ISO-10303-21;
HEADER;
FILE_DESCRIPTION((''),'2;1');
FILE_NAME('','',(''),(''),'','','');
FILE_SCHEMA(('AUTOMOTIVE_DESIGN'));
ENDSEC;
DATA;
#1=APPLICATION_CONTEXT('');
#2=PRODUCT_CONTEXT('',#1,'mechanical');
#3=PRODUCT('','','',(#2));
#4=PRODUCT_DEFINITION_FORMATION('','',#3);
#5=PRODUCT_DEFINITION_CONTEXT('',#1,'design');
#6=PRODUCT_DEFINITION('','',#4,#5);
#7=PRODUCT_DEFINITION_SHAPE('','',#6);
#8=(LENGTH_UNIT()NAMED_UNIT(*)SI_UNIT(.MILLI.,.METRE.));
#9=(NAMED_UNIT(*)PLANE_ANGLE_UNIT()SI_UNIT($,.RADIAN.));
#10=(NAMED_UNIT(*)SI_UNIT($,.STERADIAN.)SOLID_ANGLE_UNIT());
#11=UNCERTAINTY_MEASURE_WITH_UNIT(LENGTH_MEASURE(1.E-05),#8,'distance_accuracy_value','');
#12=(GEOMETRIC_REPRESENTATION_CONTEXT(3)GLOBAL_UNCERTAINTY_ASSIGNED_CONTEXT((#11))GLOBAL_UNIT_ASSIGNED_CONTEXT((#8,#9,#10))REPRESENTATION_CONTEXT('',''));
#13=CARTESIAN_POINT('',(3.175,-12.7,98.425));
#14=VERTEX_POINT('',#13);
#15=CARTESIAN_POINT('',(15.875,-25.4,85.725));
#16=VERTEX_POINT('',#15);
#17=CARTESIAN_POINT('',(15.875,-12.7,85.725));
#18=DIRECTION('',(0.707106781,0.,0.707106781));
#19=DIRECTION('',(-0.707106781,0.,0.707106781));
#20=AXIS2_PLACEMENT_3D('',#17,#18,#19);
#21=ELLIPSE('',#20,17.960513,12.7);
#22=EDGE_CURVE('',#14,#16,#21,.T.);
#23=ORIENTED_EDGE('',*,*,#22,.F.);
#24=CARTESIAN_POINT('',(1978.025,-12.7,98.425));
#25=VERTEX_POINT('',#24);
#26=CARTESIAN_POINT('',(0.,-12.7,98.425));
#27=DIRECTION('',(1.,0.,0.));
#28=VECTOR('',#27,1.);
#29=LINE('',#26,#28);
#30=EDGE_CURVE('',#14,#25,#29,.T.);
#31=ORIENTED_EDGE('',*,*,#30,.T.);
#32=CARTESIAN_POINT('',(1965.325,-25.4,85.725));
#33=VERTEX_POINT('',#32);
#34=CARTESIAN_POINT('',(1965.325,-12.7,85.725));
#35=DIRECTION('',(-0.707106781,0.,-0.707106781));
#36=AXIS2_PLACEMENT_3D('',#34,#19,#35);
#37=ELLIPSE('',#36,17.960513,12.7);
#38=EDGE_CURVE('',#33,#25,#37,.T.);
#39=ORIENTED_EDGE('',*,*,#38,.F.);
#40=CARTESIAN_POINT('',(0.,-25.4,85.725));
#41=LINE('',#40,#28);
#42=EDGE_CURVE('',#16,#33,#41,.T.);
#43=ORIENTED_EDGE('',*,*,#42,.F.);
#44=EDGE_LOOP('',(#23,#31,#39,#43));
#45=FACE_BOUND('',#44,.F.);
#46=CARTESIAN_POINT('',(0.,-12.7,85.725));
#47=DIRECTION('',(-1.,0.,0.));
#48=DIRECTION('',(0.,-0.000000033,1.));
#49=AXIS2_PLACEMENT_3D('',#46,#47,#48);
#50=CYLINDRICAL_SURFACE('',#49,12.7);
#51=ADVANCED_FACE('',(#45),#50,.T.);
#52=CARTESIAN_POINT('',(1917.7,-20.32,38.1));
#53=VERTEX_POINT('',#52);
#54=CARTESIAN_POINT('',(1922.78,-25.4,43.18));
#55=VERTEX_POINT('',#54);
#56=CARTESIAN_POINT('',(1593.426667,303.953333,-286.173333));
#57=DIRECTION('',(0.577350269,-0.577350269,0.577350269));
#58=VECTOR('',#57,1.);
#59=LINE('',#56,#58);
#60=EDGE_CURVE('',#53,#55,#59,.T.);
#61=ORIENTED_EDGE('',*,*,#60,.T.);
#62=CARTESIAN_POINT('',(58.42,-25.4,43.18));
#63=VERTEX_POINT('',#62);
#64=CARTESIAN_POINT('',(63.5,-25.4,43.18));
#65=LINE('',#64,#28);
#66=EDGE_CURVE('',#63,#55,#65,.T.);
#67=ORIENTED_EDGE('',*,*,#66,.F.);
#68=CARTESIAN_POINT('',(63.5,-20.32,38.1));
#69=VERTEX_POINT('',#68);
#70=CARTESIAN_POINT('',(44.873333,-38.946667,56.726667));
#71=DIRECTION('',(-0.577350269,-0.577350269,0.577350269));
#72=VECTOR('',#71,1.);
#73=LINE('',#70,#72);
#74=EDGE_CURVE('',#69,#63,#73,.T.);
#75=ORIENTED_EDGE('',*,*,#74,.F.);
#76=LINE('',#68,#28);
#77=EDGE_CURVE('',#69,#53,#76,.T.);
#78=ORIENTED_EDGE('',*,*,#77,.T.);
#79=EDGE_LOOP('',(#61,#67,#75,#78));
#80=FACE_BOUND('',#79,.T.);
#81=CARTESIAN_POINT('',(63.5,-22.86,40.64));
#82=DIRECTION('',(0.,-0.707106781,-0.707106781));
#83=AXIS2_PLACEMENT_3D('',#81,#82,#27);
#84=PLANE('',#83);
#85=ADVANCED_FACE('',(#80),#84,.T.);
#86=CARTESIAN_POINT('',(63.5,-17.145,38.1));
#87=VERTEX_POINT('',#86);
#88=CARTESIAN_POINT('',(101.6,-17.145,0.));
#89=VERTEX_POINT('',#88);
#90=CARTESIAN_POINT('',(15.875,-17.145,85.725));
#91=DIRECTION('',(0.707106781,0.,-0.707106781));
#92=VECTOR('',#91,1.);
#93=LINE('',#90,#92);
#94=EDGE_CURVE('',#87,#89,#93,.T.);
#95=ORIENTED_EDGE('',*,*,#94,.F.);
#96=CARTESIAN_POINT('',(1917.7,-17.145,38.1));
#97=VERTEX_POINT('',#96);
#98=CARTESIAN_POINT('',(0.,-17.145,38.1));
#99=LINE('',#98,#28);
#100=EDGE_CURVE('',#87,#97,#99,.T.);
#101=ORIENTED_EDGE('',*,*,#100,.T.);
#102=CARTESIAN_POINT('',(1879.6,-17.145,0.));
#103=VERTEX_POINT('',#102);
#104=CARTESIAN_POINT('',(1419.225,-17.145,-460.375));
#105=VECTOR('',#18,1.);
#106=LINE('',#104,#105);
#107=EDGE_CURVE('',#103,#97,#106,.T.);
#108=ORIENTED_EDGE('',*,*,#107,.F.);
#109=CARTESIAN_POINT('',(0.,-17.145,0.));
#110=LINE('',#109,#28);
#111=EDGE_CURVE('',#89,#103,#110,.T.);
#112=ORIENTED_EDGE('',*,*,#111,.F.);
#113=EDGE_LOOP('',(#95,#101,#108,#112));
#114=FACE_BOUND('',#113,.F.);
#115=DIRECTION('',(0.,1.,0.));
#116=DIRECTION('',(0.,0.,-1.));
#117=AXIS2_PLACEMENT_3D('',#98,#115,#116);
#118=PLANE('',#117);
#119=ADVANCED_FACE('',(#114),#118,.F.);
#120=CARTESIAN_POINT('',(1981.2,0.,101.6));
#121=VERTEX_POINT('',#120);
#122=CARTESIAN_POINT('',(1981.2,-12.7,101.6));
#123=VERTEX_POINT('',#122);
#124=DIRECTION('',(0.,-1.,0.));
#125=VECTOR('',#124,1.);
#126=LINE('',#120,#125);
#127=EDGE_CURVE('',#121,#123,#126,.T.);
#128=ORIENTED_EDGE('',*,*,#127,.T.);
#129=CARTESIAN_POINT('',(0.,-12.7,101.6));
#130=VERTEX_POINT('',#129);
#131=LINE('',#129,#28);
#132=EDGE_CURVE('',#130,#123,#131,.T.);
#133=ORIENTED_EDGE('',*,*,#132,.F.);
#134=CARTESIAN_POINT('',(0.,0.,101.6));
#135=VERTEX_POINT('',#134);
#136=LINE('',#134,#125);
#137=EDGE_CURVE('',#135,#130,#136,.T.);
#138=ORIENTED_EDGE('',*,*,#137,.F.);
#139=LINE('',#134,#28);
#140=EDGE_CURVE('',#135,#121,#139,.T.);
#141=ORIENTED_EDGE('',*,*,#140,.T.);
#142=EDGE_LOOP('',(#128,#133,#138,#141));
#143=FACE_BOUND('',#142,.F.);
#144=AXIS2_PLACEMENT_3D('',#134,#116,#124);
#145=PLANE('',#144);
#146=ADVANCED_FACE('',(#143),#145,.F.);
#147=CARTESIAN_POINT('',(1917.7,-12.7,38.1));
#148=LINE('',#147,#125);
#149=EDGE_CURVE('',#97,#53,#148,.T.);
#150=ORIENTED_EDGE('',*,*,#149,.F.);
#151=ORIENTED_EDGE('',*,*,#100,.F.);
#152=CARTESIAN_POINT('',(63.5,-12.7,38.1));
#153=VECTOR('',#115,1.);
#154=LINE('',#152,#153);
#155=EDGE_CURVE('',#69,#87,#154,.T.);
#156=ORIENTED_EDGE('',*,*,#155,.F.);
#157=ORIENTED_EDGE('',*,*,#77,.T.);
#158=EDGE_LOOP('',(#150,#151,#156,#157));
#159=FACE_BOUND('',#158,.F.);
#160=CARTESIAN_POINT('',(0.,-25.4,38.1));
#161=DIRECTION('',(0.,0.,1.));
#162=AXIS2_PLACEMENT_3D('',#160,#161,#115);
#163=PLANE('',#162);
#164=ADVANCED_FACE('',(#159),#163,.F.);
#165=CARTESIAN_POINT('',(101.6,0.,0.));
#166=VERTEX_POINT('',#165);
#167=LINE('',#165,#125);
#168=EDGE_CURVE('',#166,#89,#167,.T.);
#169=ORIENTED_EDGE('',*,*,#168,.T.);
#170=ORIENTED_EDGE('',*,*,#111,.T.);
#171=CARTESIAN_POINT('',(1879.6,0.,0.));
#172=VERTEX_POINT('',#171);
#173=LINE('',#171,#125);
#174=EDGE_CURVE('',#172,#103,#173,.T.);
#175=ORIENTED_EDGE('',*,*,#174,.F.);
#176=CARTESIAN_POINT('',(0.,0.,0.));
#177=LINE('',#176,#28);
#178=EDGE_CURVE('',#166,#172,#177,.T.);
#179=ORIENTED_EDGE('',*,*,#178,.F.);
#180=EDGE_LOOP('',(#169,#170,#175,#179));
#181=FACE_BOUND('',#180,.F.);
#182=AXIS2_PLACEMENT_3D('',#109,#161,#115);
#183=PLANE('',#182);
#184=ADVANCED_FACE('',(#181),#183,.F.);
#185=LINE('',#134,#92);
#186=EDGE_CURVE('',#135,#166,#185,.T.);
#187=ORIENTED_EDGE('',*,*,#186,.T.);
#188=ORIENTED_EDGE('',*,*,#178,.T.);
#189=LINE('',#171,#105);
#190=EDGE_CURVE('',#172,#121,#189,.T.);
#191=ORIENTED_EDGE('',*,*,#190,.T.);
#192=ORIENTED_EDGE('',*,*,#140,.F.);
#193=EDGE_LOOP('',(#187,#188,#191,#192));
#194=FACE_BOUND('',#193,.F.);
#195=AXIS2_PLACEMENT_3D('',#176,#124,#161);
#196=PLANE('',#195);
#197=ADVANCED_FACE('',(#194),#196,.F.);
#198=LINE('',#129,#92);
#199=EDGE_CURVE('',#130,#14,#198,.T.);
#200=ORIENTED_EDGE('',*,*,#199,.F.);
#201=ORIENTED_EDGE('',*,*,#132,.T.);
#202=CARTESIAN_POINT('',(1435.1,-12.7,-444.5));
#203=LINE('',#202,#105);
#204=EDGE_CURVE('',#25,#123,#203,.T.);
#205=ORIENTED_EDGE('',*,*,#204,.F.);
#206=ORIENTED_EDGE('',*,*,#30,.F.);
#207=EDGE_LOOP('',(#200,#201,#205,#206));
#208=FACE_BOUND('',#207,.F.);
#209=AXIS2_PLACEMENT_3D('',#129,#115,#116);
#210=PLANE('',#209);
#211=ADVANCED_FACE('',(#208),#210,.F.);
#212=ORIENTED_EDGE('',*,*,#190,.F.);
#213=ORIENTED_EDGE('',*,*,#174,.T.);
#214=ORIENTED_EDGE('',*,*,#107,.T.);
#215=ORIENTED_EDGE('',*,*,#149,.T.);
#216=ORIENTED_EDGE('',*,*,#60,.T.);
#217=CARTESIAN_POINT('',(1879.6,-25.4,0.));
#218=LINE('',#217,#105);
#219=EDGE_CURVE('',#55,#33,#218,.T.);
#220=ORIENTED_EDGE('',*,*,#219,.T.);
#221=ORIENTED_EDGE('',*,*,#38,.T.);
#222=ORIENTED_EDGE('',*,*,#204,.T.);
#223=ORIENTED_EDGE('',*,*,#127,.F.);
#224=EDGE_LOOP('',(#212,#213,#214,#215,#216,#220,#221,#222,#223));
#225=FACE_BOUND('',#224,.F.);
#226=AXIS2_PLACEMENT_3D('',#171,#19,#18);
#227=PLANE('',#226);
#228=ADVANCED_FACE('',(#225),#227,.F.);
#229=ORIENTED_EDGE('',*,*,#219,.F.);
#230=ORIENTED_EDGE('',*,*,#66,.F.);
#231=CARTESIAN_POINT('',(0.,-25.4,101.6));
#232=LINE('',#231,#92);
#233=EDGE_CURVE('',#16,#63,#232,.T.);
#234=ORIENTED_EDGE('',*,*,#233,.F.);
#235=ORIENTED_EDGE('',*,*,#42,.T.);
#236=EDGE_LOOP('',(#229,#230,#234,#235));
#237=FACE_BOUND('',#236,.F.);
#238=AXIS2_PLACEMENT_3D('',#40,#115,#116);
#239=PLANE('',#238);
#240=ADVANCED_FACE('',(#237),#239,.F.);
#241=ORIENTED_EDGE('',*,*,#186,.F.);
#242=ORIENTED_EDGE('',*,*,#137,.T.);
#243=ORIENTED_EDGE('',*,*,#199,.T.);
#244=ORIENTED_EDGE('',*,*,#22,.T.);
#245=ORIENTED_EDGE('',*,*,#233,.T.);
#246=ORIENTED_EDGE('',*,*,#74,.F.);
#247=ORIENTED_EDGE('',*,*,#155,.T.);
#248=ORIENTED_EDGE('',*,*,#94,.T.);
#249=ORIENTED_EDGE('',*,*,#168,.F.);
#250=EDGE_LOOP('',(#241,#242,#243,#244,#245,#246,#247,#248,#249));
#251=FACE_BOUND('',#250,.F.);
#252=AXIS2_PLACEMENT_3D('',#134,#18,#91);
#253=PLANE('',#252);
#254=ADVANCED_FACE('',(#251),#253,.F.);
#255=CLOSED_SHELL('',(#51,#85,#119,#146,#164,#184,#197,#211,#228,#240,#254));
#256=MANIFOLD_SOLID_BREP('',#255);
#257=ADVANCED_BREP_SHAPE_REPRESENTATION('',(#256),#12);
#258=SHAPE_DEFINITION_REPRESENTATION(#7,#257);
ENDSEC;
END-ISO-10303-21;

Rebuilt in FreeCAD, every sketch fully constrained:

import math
import FreeCAD as App
import Part
import Sketcher

V = App.Vector
Q = App.Units.Quantity


def edges_at(feature, points):
    """Names of the edges that pass closest to the given points."""
    edges = feature.Shape.Edges
    near = lambda p: min(range(len(edges)), key=lambda i: edges[i].distToShape(Part.Vertex(*p))[0])
    return sorted({f"Edge{near(p) + 1}" for p in points})

doc = App.newDocument("Part")
body = doc.addObject("PartDesign::Body", "Body")

sketch1 = body.newObject("Sketcher::SketchObject", "Sketch")
sketch1.AttachmentSupport = (doc.getObject("YZ_Plane"), [""])
sketch1.MapMode = "FlatFace"
sketch1.addGeometry([
    Part.LineSegment(V(-17.1, 0, 0), V(0, 0, 0)),
    Part.LineSegment(V(0, 0, 0), V(0, 101.6, 0)),
    Part.LineSegment(V(0, 101.6, 0), V(-12.7, 101.6, 0)),
    Part.LineSegment(V(-12.7, 101.6, 0), V(-12.7, 98.4, 0)),
    Part.ArcOfCircle(Part.Circle(V(-12.7, 85.7, 0), V(0, 0, 1), 12.7), math.radians(90), math.radians(180)),
    Part.LineSegment(V(-25.4, 85.7, 0), V(-25.4, 38.1, 0)),
    Part.LineSegment(V(-25.4, 38.1, 0), V(-17.1, 38.1, 0)),
    Part.LineSegment(V(-17.1, 38.1, 0), V(-17.1, 0, 0)),
], False)
sketch1.addConstraint([
    Sketcher.Constraint("Coincident", 0, 2, 1, 1),
    Sketcher.Constraint("Coincident", 1, 2, 2, 1),
    Sketcher.Constraint("Coincident", 2, 2, 3, 1),
    Sketcher.Constraint("Coincident", 3, 2, 4, 1),
    Sketcher.Constraint("Tangent", 4, 2, 5, 1),
    Sketcher.Constraint("Coincident", 5, 2, 6, 1),
    Sketcher.Constraint("Coincident", 6, 2, 7, 1),
    Sketcher.Constraint("Coincident", 7, 2, 0, 1),
    Sketcher.Constraint("Horizontal", 0),
    Sketcher.Constraint("Vertical", 1),
    Sketcher.Constraint("Horizontal", 2),
    Sketcher.Constraint("Vertical", 3),
    Sketcher.Constraint("Vertical", 5),
    Sketcher.Constraint("Horizontal", 6),
    Sketcher.Constraint("Vertical", 7),
    Sketcher.Constraint("Coincident", 0, 2, -1, 1),
    Sketcher.Constraint("Vertical", 4, 3, 2, 2),
    Sketcher.Constraint("Radius", 4, Q("0.5 in")),
    Sketcher.Constraint("DistanceY", 1, 1, 1, 2, Q("4 in")),
    Sketcher.Constraint("DistanceX", 2, 2, 2, 1, Q("0.5 in")),
    Sketcher.Constraint("DistanceY", 7, 2, 7, 1, Q("1.5 in")),
    Sketcher.Constraint("DistanceX", 0, 1, 0, 2, Q("0.675 in")),
    Sketcher.Constraint("DistanceY", 3, 2, 3, 1, Q("0.125 in")),
])
pad1 = body.newObject("PartDesign::Pad", "Pad")
pad1.Profile = sketch1
pad1.Length = Q("78 in")

sketch2 = body.newObject("Sketcher::SketchObject", "Sketch001")
sketch2.AttachmentSupport = (doc.getObject("XZ_Plane"), [""])
sketch2.MapMode = "FlatFace"
sketch2.addGeometry([
    Part.LineSegment(V(1880, 0, 0), V(1981, 102, 0)),
    Part.LineSegment(V(1981, 102, 0), V(1981, 0, 0)),
    Part.LineSegment(V(1981, 0, 0), V(1880, 0, 0)),
    Part.LineSegment(V(0, 0, 0), V(0, 102, 0)),
    Part.LineSegment(V(0, 102, 0), V(102, 0, 0)),
    Part.LineSegment(V(102, 0, 0), V(0, 0, 0)),
], False)
sketch2.addConstraint([
    Sketcher.Constraint("Coincident", 0, 2, 1, 1),
    Sketcher.Constraint("Coincident", 1, 2, 2, 1),
    Sketcher.Constraint("Coincident", 2, 2, 0, 1),
    Sketcher.Constraint("Coincident", 3, 2, 4, 1),
    Sketcher.Constraint("Coincident", 4, 2, 5, 1),
    Sketcher.Constraint("Coincident", 5, 2, 3, 1),
    Sketcher.Constraint("Vertical", 1),
    Sketcher.Constraint("Horizontal", 2),
    Sketcher.Constraint("Vertical", 3),
    Sketcher.Constraint("Horizontal", 5),
    Sketcher.Constraint("Coincident", 5, 2, -1, 1),
    Sketcher.Constraint("PointOnObject", 1, 2, -1),
    Sketcher.Constraint("Perpendicular", 0, 4),
    Sketcher.Constraint("Horizontal", 0, 2, 3, 2),
    Sketcher.Constraint("Equal", 2, 5),
    Sketcher.Constraint("DistanceX", 2, 2, 2, 1, Q("4 in")),
    Sketcher.Constraint("DistanceX", -1, 1, 0, 2, Q("78 in")),
])
pocket1 = body.newObject("PartDesign::Pocket", "Pocket")
pocket1.Profile = sketch2
pocket1.Length = Q("1 in")
pocket1.Reversed = True
doc.recompute()

chamfer = body.newObject("PartDesign::Chamfer", "Chamfer")
chamfer.Base = (pocket1, edges_at(pocket1, [(990.6, -25.4, 38.1)]))
chamfer.Size = Q("0.2 in")

doc.recompute()
